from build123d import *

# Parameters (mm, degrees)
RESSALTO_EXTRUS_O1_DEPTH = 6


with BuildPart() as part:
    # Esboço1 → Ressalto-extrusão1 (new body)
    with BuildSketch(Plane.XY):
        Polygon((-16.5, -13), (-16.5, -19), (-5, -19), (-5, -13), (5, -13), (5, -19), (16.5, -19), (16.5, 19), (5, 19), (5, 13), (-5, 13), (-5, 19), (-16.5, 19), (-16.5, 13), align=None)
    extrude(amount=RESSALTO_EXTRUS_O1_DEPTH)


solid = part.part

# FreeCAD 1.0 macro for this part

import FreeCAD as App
import Part
import Sketcher
Q = App.Units.Quantity

doc = App.newDocument("Part")
body = doc.addObject("PartDesign::Body", "Body")

# Sketch on XY plane
sketch1 = body.newObject("Sketcher::SketchObject", "Sketch")
sketch1.AttachmentSupport = (doc.getObject("XY_Plane"), [""])
sketch1.MapMode = "FlatFace"
sketch1.addGeometry(Part.LineSegment(App.Vector(-16, -19, 0), App.Vector(-5, -19, 0)), False)
sketch1.addGeometry(Part.LineSegment(App.Vector(-5, -19, 0), App.Vector(-5, -13, 0)), False)
sketch1.addGeometry(Part.LineSegment(App.Vector(-5, -13, 0), App.Vector(5, -13, 0)), False)
sketch1.addGeometry(Part.LineSegment(App.Vector(5, -13, 0), App.Vector(5, -19, 0)), False)
sketch1.addGeometry(Part.LineSegment(App.Vector(5, -19, 0), App.Vector(16, -19, 0)), False)
sketch1.addGeometry(Part.LineSegment(App.Vector(16, -19, 0), App.Vector(16, 19, 0)), False)
sketch1.addGeometry(Part.LineSegment(App.Vector(16, 19, 0), App.Vector(5, 19, 0)), False)
sketch1.addGeometry(Part.LineSegment(App.Vector(5, 19, 0), App.Vector(5, 13, 0)), False)
sketch1.addGeometry(Part.LineSegment(App.Vector(5, 13, 0), App.Vector(-5, 13, 0)), False)
sketch1.addGeometry(Part.LineSegment(App.Vector(-5, 13, 0), App.Vector(-5, 19, 0)), False)
sketch1.addGeometry(Part.LineSegment(App.Vector(-5, 19, 0), App.Vector(-16, 19, 0)), False)
sketch1.addGeometry(Part.LineSegment(App.Vector(-16, 19, 0), App.Vector(-16, -19, 0)), False)
sketch1.addConstraint(Sketcher.Constraint("Coincident", 0, 2, 1, 1))
sketch1.addConstraint(Sketcher.Constraint("Coincident", 1, 2, 2, 1))
sketch1.addConstraint(Sketcher.Constraint("Coincident", 2, 2, 3, 1))
sketch1.addConstraint(Sketcher.Constraint("Coincident", 3, 2, 4, 1))
sketch1.addConstraint(Sketcher.Constraint("Coincident", 4, 2, 5, 1))
sketch1.addConstraint(Sketcher.Constraint("Coincident", 5, 2, 6, 1))
sketch1.addConstraint(Sketcher.Constraint("Coincident", 6, 2, 7, 1))
sketch1.addConstraint(Sketcher.Constraint("Coincident", 7, 2, 8, 1))
sketch1.addConstraint(Sketcher.Constraint("Coincident", 8, 2, 9, 1))
sketch1.addConstraint(Sketcher.Constraint("Coincident", 9, 2, 10, 1))
sketch1.addConstraint(Sketcher.Constraint("Coincident", 10, 2, 11, 1))
sketch1.addConstraint(Sketcher.Constraint("Coincident", 11, 2, 0, 1))
sketch1.addConstraint(Sketcher.Constraint("Horizontal", 0))
sketch1.addConstraint(Sketcher.Constraint("Vertical", 1))
sketch1.addConstraint(Sketcher.Constraint("Horizontal", 2))
sketch1.addConstraint(Sketcher.Constraint("Vertical", 3))
sketch1.addConstraint(Sketcher.Constraint("Horizontal", 4))
sketch1.addConstraint(Sketcher.Constraint("Vertical", 5))
sketch1.addConstraint(Sketcher.Constraint("Horizontal", 6))
sketch1.addConstraint(Sketcher.Constraint("Vertical", 7))
sketch1.addConstraint(Sketcher.Constraint("Horizontal", 8))
sketch1.addConstraint(Sketcher.Constraint("Vertical", 9))
sketch1.addConstraint(Sketcher.Constraint("Horizontal", 10))
sketch1.addConstraint(Sketcher.Constraint("Vertical", 11))
sketch1.addConstraint(Sketcher.Constraint("Symmetric", 0, 2, 6, 2, -1, 1))
sketch1.addConstraint(Sketcher.Constraint("Symmetric", 2, 2, 8, 2, -1, 1))
sketch1.addConstraint(Sketcher.Constraint("Symmetric", 4, 2, 10, 2, -1, 1))
sketch1.addConstraint(Sketcher.Constraint("Symmetric", 0, 2, 3, 2, -2))
sketch1.addConstraint(Sketcher.Constraint("DistanceX", 2, 1, 2, 2, Q("10 mm")))
sketch1.addConstraint(Sketcher.Constraint("DistanceY", 1, 1, 1, 2, Q("6 mm")))
sketch1.addConstraint(Sketcher.Constraint("DistanceY", 5, 1, 5, 2, Q("38 mm")))
sketch1.addConstraint(Sketcher.Constraint("DistanceX", 0, 1, 0, 2, Q("11.5 mm")))
pad1 = body.newObject("PartDesign::Pad", "Pad")
pad1.Profile = sketch1
pad1.Length = 6

doc.recompute()
